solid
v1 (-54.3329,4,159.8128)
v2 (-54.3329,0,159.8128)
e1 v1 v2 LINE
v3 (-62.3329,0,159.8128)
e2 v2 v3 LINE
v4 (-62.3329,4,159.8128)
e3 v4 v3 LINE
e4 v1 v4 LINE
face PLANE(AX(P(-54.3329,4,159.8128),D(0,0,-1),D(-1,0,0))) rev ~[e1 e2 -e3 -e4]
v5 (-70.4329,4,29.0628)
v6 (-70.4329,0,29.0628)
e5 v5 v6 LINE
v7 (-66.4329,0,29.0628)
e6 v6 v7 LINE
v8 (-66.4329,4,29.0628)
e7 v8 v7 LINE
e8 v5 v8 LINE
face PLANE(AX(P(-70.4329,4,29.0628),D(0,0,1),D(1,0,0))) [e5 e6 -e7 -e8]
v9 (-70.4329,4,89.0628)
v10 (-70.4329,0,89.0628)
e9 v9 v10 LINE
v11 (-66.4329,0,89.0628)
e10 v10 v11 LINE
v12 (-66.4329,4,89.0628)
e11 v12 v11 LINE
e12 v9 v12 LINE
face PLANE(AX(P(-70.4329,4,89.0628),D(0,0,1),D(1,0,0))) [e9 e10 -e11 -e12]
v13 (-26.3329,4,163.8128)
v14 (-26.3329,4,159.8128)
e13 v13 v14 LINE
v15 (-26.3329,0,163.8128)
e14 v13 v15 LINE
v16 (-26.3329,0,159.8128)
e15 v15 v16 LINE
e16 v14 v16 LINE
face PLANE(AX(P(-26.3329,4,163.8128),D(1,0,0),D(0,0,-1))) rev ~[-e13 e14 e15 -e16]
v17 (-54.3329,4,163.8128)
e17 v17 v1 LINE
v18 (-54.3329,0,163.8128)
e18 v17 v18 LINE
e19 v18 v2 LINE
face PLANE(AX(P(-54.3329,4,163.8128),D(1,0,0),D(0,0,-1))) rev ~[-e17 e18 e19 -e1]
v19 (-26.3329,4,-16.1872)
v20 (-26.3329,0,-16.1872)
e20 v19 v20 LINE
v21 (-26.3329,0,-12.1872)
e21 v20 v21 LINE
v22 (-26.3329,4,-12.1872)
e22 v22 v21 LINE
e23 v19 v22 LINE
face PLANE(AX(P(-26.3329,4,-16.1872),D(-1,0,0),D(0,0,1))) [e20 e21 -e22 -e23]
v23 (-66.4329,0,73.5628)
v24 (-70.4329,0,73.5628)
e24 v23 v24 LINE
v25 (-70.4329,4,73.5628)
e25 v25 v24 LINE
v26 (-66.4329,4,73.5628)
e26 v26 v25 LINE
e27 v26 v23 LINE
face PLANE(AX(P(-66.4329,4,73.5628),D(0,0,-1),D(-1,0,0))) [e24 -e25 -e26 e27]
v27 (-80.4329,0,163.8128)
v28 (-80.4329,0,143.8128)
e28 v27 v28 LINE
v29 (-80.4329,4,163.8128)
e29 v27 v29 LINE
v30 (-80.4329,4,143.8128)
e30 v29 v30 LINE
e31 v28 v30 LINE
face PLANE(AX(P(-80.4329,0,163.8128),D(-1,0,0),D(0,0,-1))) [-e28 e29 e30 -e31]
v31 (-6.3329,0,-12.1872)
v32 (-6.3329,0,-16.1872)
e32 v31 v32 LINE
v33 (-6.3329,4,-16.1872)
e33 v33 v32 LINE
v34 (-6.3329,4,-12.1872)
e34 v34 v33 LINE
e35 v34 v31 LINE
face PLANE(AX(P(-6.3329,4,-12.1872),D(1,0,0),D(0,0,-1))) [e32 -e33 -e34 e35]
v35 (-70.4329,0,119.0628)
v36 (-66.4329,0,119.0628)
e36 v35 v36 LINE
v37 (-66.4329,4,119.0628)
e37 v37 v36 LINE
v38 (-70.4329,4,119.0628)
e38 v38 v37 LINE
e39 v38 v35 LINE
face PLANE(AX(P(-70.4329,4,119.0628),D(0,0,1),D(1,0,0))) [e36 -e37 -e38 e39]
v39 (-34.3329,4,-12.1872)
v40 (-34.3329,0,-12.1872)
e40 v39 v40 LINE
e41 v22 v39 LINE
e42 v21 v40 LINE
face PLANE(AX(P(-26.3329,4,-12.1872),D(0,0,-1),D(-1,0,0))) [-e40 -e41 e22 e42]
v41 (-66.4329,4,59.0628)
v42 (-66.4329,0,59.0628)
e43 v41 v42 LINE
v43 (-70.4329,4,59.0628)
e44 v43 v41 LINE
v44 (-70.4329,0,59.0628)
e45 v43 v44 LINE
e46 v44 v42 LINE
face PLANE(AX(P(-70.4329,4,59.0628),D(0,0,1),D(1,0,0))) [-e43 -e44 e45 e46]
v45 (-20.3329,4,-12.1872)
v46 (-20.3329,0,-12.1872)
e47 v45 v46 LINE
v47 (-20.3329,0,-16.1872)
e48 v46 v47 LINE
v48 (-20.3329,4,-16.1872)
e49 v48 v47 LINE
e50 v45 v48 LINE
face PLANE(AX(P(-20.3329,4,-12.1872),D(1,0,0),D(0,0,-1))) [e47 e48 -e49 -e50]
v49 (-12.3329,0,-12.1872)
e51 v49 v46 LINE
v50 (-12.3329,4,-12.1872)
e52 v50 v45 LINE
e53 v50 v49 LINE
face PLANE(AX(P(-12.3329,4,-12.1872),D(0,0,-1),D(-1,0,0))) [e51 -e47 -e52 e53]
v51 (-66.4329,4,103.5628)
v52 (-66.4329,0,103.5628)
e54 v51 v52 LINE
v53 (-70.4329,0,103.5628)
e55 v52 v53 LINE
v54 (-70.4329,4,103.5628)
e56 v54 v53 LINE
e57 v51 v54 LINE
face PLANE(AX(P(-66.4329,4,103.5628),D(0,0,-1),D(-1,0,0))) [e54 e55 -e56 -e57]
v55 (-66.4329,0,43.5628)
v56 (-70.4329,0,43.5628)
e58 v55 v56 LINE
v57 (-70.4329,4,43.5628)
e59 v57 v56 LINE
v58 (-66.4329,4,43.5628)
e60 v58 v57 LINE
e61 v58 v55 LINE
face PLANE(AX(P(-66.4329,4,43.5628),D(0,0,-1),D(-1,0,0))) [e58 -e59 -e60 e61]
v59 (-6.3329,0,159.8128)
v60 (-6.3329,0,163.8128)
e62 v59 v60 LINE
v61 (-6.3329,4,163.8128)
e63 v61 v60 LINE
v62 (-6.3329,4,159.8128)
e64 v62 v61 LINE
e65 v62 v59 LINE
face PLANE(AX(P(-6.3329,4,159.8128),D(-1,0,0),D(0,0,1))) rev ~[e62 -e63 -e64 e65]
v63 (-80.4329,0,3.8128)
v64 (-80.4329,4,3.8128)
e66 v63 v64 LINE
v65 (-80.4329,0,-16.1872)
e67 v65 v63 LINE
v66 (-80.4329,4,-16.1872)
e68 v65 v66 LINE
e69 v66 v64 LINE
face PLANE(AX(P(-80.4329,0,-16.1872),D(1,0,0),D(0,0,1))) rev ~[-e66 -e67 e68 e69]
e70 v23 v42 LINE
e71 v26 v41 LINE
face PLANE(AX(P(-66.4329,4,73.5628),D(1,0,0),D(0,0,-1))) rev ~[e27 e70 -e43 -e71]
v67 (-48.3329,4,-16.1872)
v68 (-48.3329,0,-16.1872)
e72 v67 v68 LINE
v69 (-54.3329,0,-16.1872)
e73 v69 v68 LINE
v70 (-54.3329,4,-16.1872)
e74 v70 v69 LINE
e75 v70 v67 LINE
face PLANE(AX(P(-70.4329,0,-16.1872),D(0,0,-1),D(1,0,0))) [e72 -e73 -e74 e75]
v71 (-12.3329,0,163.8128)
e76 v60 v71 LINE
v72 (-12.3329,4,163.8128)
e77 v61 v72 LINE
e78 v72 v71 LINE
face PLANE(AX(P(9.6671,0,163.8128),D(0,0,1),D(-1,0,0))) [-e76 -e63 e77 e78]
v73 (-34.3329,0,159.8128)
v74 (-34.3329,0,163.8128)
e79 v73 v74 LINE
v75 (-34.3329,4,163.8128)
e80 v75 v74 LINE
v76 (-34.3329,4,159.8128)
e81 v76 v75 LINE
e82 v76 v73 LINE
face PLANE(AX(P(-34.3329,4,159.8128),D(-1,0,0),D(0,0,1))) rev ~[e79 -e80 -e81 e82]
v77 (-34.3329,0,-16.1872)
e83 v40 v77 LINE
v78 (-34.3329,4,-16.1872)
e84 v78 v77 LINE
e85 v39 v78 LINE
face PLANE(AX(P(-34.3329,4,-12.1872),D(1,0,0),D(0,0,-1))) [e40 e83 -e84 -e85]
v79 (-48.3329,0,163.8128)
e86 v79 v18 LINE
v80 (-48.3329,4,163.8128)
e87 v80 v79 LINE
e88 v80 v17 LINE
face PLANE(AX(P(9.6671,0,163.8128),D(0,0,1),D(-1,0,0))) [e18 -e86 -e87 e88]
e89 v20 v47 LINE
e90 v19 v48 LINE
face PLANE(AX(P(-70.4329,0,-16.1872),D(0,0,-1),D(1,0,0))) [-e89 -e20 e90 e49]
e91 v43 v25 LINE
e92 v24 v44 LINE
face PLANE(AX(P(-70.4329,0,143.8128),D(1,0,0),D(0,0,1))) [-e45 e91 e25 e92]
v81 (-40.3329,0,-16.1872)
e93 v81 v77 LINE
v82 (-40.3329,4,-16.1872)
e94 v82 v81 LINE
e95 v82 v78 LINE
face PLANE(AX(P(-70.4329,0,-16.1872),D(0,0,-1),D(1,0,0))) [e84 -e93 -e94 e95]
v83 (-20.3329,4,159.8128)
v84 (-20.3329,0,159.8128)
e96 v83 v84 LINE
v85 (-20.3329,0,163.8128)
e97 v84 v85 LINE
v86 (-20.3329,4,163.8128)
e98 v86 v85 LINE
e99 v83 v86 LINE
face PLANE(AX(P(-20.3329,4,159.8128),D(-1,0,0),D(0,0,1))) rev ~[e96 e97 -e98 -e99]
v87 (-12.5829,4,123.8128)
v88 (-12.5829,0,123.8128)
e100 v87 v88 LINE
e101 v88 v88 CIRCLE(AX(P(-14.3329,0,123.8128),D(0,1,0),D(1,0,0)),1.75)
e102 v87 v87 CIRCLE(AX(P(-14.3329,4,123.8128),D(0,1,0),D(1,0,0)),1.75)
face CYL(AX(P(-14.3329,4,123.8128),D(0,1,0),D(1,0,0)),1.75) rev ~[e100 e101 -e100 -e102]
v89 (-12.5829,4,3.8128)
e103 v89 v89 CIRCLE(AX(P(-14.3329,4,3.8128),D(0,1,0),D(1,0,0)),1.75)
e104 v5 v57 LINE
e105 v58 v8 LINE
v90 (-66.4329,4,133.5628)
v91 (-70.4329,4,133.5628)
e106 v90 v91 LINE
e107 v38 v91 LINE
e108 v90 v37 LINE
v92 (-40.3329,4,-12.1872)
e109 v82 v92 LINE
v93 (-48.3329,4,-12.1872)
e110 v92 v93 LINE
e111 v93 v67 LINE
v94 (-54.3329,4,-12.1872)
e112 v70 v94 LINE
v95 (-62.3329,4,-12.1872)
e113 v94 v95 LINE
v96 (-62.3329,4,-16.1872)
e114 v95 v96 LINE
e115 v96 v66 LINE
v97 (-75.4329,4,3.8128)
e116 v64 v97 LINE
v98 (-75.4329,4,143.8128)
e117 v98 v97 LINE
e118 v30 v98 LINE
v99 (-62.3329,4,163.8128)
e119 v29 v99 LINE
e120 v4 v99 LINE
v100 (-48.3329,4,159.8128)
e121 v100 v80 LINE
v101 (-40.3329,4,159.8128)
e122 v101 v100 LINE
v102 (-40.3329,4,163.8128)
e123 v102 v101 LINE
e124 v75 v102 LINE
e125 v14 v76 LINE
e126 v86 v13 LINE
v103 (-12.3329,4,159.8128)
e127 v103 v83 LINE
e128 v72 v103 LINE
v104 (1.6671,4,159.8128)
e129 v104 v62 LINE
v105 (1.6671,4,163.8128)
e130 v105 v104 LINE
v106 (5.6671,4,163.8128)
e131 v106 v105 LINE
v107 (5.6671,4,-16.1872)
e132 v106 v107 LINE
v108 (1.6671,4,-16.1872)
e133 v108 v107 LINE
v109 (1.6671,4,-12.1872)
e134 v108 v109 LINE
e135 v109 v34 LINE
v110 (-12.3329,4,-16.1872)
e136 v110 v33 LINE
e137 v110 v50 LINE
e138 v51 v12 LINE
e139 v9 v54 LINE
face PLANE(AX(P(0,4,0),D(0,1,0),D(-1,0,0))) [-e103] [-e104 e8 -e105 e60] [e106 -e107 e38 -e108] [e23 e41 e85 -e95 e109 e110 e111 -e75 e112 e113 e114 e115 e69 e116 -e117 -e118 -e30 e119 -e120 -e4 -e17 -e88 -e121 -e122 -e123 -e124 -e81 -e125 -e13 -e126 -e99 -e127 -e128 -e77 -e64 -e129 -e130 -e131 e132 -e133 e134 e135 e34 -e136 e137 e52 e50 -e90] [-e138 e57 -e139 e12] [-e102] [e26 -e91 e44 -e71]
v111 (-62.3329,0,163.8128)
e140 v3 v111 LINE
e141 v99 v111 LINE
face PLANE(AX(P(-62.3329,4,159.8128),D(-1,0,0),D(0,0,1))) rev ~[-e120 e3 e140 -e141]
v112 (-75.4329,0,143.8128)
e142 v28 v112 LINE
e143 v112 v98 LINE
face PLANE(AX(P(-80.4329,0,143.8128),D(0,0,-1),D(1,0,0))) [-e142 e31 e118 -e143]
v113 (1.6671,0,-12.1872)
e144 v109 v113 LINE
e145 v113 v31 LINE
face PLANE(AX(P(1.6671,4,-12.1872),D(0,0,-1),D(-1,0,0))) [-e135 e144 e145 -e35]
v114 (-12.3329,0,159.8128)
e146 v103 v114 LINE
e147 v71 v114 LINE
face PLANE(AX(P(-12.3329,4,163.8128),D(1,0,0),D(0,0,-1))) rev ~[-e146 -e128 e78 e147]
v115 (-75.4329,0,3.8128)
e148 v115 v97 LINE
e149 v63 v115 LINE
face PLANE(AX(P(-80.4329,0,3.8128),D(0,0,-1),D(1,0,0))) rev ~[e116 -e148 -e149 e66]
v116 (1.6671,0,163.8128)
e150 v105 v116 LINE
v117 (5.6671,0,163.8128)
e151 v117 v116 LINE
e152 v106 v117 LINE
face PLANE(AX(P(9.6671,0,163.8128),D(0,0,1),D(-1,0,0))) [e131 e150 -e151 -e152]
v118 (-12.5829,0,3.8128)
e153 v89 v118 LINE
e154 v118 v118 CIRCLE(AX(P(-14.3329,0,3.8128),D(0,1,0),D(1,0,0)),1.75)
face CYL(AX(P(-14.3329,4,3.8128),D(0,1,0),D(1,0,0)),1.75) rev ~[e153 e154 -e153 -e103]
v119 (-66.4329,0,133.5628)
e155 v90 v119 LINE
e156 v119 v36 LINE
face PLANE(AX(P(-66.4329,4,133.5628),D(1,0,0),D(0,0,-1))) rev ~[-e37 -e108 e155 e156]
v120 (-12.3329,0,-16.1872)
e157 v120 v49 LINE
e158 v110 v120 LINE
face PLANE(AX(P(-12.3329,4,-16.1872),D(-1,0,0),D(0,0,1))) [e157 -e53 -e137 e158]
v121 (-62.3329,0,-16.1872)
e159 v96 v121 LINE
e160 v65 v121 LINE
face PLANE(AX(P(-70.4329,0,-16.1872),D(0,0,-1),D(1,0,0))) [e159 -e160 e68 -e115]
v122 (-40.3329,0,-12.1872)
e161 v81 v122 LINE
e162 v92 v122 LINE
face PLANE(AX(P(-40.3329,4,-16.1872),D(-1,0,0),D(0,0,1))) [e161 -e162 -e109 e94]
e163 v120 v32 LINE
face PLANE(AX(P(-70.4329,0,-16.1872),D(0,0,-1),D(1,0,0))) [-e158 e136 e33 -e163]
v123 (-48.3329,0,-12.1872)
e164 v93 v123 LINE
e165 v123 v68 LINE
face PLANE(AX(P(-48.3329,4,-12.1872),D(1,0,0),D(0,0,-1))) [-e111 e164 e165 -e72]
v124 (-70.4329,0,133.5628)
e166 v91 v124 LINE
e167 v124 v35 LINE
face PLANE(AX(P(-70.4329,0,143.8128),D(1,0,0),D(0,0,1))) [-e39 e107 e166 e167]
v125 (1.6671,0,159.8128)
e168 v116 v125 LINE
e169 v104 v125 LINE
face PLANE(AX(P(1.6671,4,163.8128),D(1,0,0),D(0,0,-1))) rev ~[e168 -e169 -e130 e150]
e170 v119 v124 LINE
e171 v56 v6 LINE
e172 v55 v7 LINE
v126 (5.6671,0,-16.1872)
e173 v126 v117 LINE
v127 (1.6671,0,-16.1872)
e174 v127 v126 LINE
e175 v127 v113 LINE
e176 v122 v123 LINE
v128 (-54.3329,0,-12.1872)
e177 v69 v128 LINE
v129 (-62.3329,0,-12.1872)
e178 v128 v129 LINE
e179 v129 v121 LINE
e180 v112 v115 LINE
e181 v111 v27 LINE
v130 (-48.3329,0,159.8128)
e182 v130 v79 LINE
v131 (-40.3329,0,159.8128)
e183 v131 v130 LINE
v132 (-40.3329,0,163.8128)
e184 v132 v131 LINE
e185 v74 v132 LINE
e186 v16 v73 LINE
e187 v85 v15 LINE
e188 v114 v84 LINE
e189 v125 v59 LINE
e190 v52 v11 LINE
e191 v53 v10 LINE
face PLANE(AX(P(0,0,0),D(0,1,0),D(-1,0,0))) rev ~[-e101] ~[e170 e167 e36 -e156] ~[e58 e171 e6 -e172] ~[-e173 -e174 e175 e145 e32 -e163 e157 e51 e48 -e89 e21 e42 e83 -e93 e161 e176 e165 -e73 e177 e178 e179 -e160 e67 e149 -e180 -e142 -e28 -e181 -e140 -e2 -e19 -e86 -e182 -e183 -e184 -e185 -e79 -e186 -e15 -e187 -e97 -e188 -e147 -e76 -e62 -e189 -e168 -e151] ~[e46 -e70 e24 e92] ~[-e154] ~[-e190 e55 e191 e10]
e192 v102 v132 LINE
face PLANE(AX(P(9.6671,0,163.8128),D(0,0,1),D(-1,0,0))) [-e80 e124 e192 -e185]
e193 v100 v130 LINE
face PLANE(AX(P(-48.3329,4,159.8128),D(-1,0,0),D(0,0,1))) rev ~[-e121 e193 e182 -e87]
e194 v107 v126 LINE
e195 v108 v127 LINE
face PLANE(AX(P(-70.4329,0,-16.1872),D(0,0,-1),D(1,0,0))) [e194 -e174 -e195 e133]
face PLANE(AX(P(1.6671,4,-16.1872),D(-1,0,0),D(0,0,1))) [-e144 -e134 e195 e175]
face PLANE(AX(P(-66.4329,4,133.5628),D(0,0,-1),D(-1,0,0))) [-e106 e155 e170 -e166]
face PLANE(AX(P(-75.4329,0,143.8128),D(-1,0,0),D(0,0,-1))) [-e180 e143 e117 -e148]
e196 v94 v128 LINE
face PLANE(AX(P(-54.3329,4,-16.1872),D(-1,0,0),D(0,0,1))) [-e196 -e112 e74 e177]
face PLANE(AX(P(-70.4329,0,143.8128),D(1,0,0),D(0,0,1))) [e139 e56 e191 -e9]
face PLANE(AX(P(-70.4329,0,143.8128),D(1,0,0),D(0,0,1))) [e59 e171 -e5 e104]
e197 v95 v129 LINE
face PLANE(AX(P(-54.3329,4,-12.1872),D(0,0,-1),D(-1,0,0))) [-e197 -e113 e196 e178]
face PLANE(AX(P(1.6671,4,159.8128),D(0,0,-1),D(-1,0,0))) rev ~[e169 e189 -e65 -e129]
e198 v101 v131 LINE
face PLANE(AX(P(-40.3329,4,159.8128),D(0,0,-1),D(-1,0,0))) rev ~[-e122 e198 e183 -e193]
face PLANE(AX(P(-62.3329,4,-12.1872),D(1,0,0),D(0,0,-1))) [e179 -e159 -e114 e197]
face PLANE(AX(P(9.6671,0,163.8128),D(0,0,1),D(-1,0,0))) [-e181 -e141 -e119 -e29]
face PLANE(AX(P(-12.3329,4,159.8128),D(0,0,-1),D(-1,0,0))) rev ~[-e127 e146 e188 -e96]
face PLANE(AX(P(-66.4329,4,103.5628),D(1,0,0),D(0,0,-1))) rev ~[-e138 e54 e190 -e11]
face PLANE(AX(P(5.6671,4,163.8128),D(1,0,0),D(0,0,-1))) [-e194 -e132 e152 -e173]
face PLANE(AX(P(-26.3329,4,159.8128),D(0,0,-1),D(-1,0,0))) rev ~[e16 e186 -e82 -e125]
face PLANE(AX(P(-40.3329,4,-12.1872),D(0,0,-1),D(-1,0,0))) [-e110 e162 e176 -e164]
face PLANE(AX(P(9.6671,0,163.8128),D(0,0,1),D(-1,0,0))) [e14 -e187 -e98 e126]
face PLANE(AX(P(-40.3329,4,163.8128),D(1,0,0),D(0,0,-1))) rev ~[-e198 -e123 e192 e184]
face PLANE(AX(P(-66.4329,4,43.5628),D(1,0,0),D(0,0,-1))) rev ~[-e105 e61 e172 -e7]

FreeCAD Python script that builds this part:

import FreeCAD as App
import Part
import Sketcher
Q = App.Units.Quantity


def add_polygon(sketch, points):
    """Adds a closed chain of lines whose ends are joined by coincident constraints."""
    first, n = sketch.GeometryCount, len(points)
    for a, b in zip(points, points[1:] + points[:1]):
        sketch.addGeometry(Part.LineSegment(App.Vector(*a, 0), App.Vector(*b, 0)), False)
    for i in range(n):
        sketch.addConstraint(Sketcher.Constraint("Coincident", first + i, 2, first + (i + 1) % n, 1))

doc = App.newDocument("Part")
body = doc.addObject("PartDesign::Body", "Body")

# Sketch on XZ plane
sketch1 = body.newObject("Sketcher::SketchObject", "Sketch")
sketch1.AttachmentSupport = (doc.getObject("XZ_Plane"), [""])
sketch1.MapMode = "FlatFace"
add_polygon(sketch1, [(-70, 164), (10, 164), (10, -16), (-70, -16)])  # lines 0-3
sketch1.addConstraint([
    Sketcher.Constraint("Horizontal", 0),
    Sketcher.Constraint("Vertical", 1),
    Sketcher.Constraint("Horizontal", 2),
    Sketcher.Constraint("Vertical", 3),
    Sketcher.Constraint("DistanceY", 1, 2, 1, 1, Q("180 mm")),
    Sketcher.Constraint("DistanceX", 0, 1, 0, 2, Q("80.1 mm")),
    Sketcher.Constraint("DistanceX", -1, 1, 0, 2, Q("9.667 mm")),
    Sketcher.Constraint("DistanceY", -1, 1, 0, 2, Q("163.8128 mm")),
])
pad1 = body.newObject("PartDesign::Pad", "Pad")
pad1.Profile = sketch1
pad1.Length = 4
pad1.Reversed = True

# Sketch on XZ plane
sketch2 = body.newObject("Sketcher::SketchObject", "Sketch001")
sketch2.AttachmentSupport = (doc.getObject("XZ_Plane"), [""])
sketch2.MapMode = "FlatFace"
sketch2.AttachmentOffset = App.Placement(App.Vector(0, 0, -4), App.Rotation())
add_polygon(sketch2, [(-70.4, 159.6), (-66.4, 159.6), (-66.4, 149.1), (-70.4, 149.1)])  # lines 0-3
add_polygon(sketch2, [(-62.3, 159.8), (-62.3, 163.8), (-54.3, 163.8), (-54.3, 159.8)])  # lines 4-7
add_polygon(sketch2, [(-70.4, 119.1), (-70.4, 133.6), (-66.4, 133.6), (-66.4, 119.1)])  # lines 8-11
add_polygon(sketch2, [(-48.3, 159.8), (-48.3, 163.8), (-40.3, 163.8), (-40.3, 159.8)])  # lines 12-15
add_polygon(sketch2, [(-70.4, 89.1), (-70.4, 103.6), (-66.4, 103.6), (-66.4, 89.1)])  # lines 16-19
add_polygon(sketch2, [(-34.3, 159.8), (-34.3, 163.8), (-26.3, 163.8), (-26.3, 159.8)])  # lines 20-23
add_polygon(sketch2, [(-70.4, 59.1), (-70.4, 73.6), (-66.4, 73.6), (-66.4, 59.1)])  # lines 24-27
add_polygon(sketch2, [(-20.3, 159.8), (-20.3, 163.8), (-12.3, 163.8), (-12.3, 159.8)])  # lines 28-31
add_polygon(sketch2, [(-70.4, 29.1), (-70.4, 43.6), (-66.4, 43.6), (-66.4, 29.1)])  # lines 32-35
add_polygon(sketch2, [(-6.3, 159.8), (-6.3, 163.8), (1.7, 163.8), (1.7, 159.8)])  # lines 36-39
add_polygon(sketch2, [(-70.4, -0.9), (-70.4, 13.6), (-66.4, 13.6), (-66.4, -0.9)])  # lines 40-43
add_polygon(sketch2, [(5.7, 163.8), (9.7, 163.8), (9.7, -16.2), (5.7, -16.2)])  # lines 44-47
add_polygon(sketch2, [(-54.3, -16.2), (-62.3, -16.2), (-62.3, -12.2), (-54.3, -12.2)])  # lines 48-51
add_polygon(sketch2, [(-40.3, -16.2), (-48.3, -16.2), (-48.3, -12.2), (-40.3, -12.2)])  # lines 52-55
add_polygon(sketch2, [(-26.3, -16.2), (-34.3, -16.2), (-34.3, -12.2), (-26.3, -12.2)])  # lines 56-59
add_polygon(sketch2, [(-12.3, -16.2), (-20.3, -16.2), (-20.3, -12.2), (-12.3, -12.2)])  # lines 60-63
add_polygon(sketch2, [(1.7, -16.2), (-6.3, -16.2), (-6.3, -12.2), (1.7, -12.2)])  # lines 64-67
sketch2.addGeometry(Part.Circle(App.Vector(-14.3, 3.8, 0), App.Vector(0, 0, 1), 1.8), False)  # 68
sketch2.addGeometry(Part.Circle(App.Vector(-14.3, 123.8, 0), App.Vector(0, 0, 1), 1.8), False)  # 69
sketch2.addConstraint([
    Sketcher.Constraint("Horizontal", 0),
    Sketcher.Constraint("Vertical", 1),
    Sketcher.Constraint("Horizontal", 2),
    Sketcher.Constraint("Vertical", 3),
    Sketcher.Constraint("Vertical", 4),
    Sketcher.Constraint("Horizontal", 5),
    Sketcher.Constraint("Vertical", 6),
    Sketcher.Constraint("Horizontal", 7),
    Sketcher.Constraint("Vertical", 8),
    Sketcher.Constraint("Horizontal", 9),
    Sketcher.Constraint("Vertical", 10),
    Sketcher.Constraint("Horizontal", 11),
    Sketcher.Constraint("Vertical", 12),
    Sketcher.Constraint("Horizontal", 13),
    Sketcher.Constraint("Vertical", 14),
    Sketcher.Constraint("Horizontal", 15),
    Sketcher.Constraint("Vertical", 16),
    Sketcher.Constraint("Horizontal", 17),
    Sketcher.Constraint("Vertical", 18),
    Sketcher.Constraint("Horizontal", 19),
    Sketcher.Constraint("Vertical", 20),
    Sketcher.Constraint("Horizontal", 21),
    Sketcher.Constraint("Vertical", 22),
    Sketcher.Constraint("Horizontal", 23),
    Sketcher.Constraint("Vertical", 24),
    Sketcher.Constraint("Horizontal", 25),
    Sketcher.Constraint("Vertical", 26),
    Sketcher.Constraint("Horizontal", 27),
    Sketcher.Constraint("Vertical", 28),
    Sketcher.Constraint("Horizontal", 29),
    Sketcher.Constraint("Vertical", 30),
    Sketcher.Constraint("Horizontal", 31),
    Sketcher.Constraint("Vertical", 32),
    Sketcher.Constraint("Horizontal", 33),
    Sketcher.Constraint("Vertical", 34),
    Sketcher.Constraint("Horizontal", 35),
    Sketcher.Constraint("Vertical", 36),
    Sketcher.Constraint("Horizontal", 37),
    Sketcher.Constraint("Vertical", 38),
    Sketcher.Constraint("Horizontal", 39),
    Sketcher.Constraint("Vertical", 40),
    Sketcher.Constraint("Horizontal", 41),
    Sketcher.Constraint("Vertical", 42),
    Sketcher.Constraint("Horizontal", 43),
    Sketcher.Constraint("Horizontal", 44),
    Sketcher.Constraint("Vertical", 45),
    Sketcher.Constraint("Horizontal", 46),
    Sketcher.Constraint("Vertical", 47),
    Sketcher.Constraint("Horizontal", 48),
    Sketcher.Constraint("Vertical", 49),
    Sketcher.Constraint("Horizontal", 50),
    Sketcher.Constraint("Vertical", 51),
    Sketcher.Constraint("Horizontal", 52),
    Sketcher.Constraint("Vertical", 53),
    Sketcher.Constraint("Horizontal", 54),
    Sketcher.Constraint("Vertical", 55),
    Sketcher.Constraint("Horizontal", 56),
    Sketcher.Constraint("Vertical", 57),
    Sketcher.Constraint("Horizontal", 58),
    Sketcher.Constraint("Vertical", 59),
    Sketcher.Constraint("Horizontal", 60),
    Sketcher.Constraint("Vertical", 61),
    Sketcher.Constraint("Horizontal", 62),
    Sketcher.Constraint("Vertical", 63),
    Sketcher.Constraint("Horizontal", 64),
    Sketcher.Constraint("Vertical", 65),
    Sketcher.Constraint("Horizontal", 66),
    Sketcher.Constraint("Vertical", 67),
    Sketcher.Constraint("Equal", 68, 69),
    Sketcher.Constraint("Horizontal", 5, 2, 12, 2),
    Sketcher.Constraint("Horizontal", 7, 2, 14, 2),
    Sketcher.Constraint("Horizontal", 13, 2, 20, 2),
    Sketcher.Constraint("Horizontal", 15, 2, 22, 2),
    Sketcher.Constraint("Horizontal", 21, 2, 28, 2),
    Sketcher.Constraint("Horizontal", 23, 2, 30, 2),
    Sketcher.Constraint("Horizontal", 29, 2, 36, 2),
    Sketcher.Constraint("Horizontal", 31, 2, 38, 2),
    Sketcher.Constraint("Horizontal", 37, 2, 44, 2),
    Sketcher.Constraint("Horizontal", 46, 2, 48, 2),
    Sketcher.Constraint("Horizontal", 51, 2, 52, 2),
    Sketcher.Constraint("Horizontal", 50, 2, 53, 2),
    Sketcher.Constraint("Horizontal", 55, 2, 56, 2),
    Sketcher.Constraint("Horizontal", 54, 2, 57, 2),
    Sketcher.Constraint("Horizontal", 59, 2, 60, 2),
    Sketcher.Constraint("Horizontal", 58, 2, 61, 2),
    Sketcher.Constraint("Horizontal", 63, 2, 64, 2),
    Sketcher.Constraint("Horizontal", 62, 2, 65, 2),
    Sketcher.Constraint("Vertical", 68, 3, 69, 3),
    Sketcher.Constraint("Vertical", 3, 2, 8, 2),
    Sketcher.Constraint("Vertical", 1, 2, 9, 2),
    Sketcher.Constraint("Vertical", 11, 2, 16, 2),
    Sketcher.Constraint("Vertical", 10, 2, 17, 2),
    Sketcher.Constraint("Vertical", 19, 2, 24, 2),
    Sketcher.Constraint("Vertical", 18, 2, 25, 2),
    Sketcher.Constraint("Vertical", 27, 2, 32, 2),
    Sketcher.Constraint("Vertical", 26, 2, 33, 2),
    Sketcher.Constraint("Vertical", 35, 2, 40, 2),
    Sketcher.Constraint("Vertical", 34, 2, 41, 2),
    Sketcher.Constraint("Vertical", 7, 2, 48, 2),
    Sketcher.Constraint("Vertical", 6, 2, 50, 2),
    Sketcher.Constraint("Vertical", 15, 2, 52, 2),
    Sketcher.Constraint("Vertical", 14, 2, 54, 2),
    Sketcher.Constraint("Vertical", 23, 2, 56, 2),
    Sketcher.Constraint("Vertical", 22, 2, 58, 2),
    Sketcher.Constraint("Vertical", 31, 2, 60, 2),
    Sketcher.Constraint("Vertical", 30, 2, 62, 2),
    Sketcher.Constraint("Vertical", 39, 2, 64, 2),
    Sketcher.Constraint("Vertical", 38, 2, 66, 2),
    Sketcher.Constraint("Equal", 7, 13),
    Sketcher.Constraint("Equal", 15, 21),
    Sketcher.Constraint("Equal", 23, 29),
    Sketcher.Constraint("Equal", 31, 37),
    Sketcher.Constraint("Equal", 43, 44),
    Sketcher.Constraint("Equal", 46, 4),
    Sketcher.Constraint("Equal", 10, 16),
    Sketcher.Constraint("Equal", 18, 24),
    Sketcher.Constraint("Equal", 26, 32),
    Sketcher.Constraint("Equal", 34, 40),
    Sketcher.Constraint("Equal", 38, 49),
    Sketcher.Constraint("Diameter", 68, Q("3.5 mm")),
    Sketcher.Constraint("DistanceX", 0, 1, 0, 2, Q("4 mm")),
    Sketcher.Constraint("DistanceX", 5, 1, 5, 2, Q("8 mm")),
    Sketcher.Constraint("DistanceY", 45, 2, 45, 1, Q("180 mm")),
    Sketcher.Constraint("DistanceY", 1, 2, 1, 1, Q("10.5 mm")),
    Sketcher.Constraint("DistanceY", 8, 1, 8, 2, Q("14.5 mm")),
    Sketcher.Constraint("DistanceX", 68, 3, -1, 1, Q("14.333 mm")),
    Sketcher.Constraint("DistanceX", 0, 2, -1, 1, Q("66.433 mm")),
    Sketcher.Constraint("DistanceX", 4, 2, -1, 1, Q("62.333 mm")),
    Sketcher.Constraint("DistanceX", 12, 2, -1, 1, Q("48.333 mm")),
    Sketcher.Constraint("DistanceX", 20, 2, -1, 1, Q("34.333 mm")),
    Sketcher.Constraint("DistanceX", 28, 2, -1, 1, Q("20.333 mm")),
    Sketcher.Constraint("DistanceX", 36, 2, -1, 1, Q("6.333 mm")),
    Sketcher.Constraint("DistanceX", -1, 1, 44, 2, Q("9.667 mm")),
    Sketcher.Constraint("DistanceY", -1, 1, 68, 3, Q("3.8128 mm")),
    Sketcher.Constraint("DistanceY", -1, 1, 69, 3, Q("123.8128 mm")),
    Sketcher.Constraint("DistanceY", -1, 1, 0, 2, Q("159.5628 mm")),
    Sketcher.Constraint("DistanceY", -1, 1, 4, 2, Q("163.8128 mm")),
    Sketcher.Constraint("DistanceY", -1, 1, 8, 2, Q("133.5628 mm")),
    Sketcher.Constraint("DistanceY", -1, 1, 16, 2, Q("103.5628 mm")),
    Sketcher.Constraint("DistanceY", -1, 1, 24, 2, Q("73.5628 mm")),
    Sketcher.Constraint("DistanceY", -1, 1, 32, 2, Q("43.5628 mm")),
    Sketcher.Constraint("DistanceY", -1, 1, 40, 2, Q("13.5628 mm")),
])
pocket1 = body.newObject("PartDesign::Pocket", "Pocket")
pocket1.Profile = sketch2
pocket1.Length = 4
pocket1.Reversed = True

# Sketch on XZ plane
sketch3 = body.newObject("Sketcher::SketchObject", "Sketch002")
sketch3.AttachmentSupport = (doc.getObject("XZ_Plane"), [""])
sketch3.MapMode = "FlatFace"
add_polygon(sketch3, [(-70.4, 149.1), (-66.4, 149.1), (-66.4, 159.6), (-70.4, 159.6), (-70.4, 163.8), (-80.4, 163.8), (-80.4, 143.8), (-75.4, 143.8), (-75.4, 3.8), (-80.4, 3.8), (-80.4, -16.2), (-70.4, -16.2), (-70.4, -0.9), (-66.4, -0.9), (-66.4, 13.6), (-70.4, 13.6)])  # lines 0-15
sketch3.addConstraint([
    Sketcher.Constraint("Horizontal", 0),
    Sketcher.Constraint("Vertical", 1),
    Sketcher.Constraint("Horizontal", 2),
    Sketcher.Constraint("Vertical", 3),
    Sketcher.Constraint("Horizontal", 4),
    Sketcher.Constraint("Vertical", 5),
    Sketcher.Constraint("Horizontal", 6),
    Sketcher.Constraint("Vertical", 7),
    Sketcher.Constraint("Horizontal", 8),
    Sketcher.Constraint("Vertical", 9),
    Sketcher.Constraint("Horizontal", 10),
    Sketcher.Constraint("Vertical", 11),
    Sketcher.Constraint("Horizontal", 12),
    Sketcher.Constraint("Vertical", 13),
    Sketcher.Constraint("Horizontal", 14),
    Sketcher.Constraint("Vertical", 15),
    Sketcher.Constraint("Vertical", 5, 2, 8, 2),
    Sketcher.Constraint("Vertical", 3, 2, 10, 2),
    Sketcher.Constraint("Vertical", 1, 2, 12, 2),
    Sketcher.Constraint("Vertical", 11, 2, 14, 2),
    Sketcher.Constraint("Equal", 5, 9),
    Sketcher.Constraint("DistanceX", 4, 2, 4, 1, Q("10 mm")),
    Sketcher.Constraint("DistanceX", 6, 1, 6, 2, Q("5 mm")),
    Sketcher.Constraint("DistanceY", 5, 2, 5, 1, Q("20 mm")),
    Sketcher.Constraint("DistanceX", 0, 1, 0, 2, Q("4 mm")),
    Sketcher.Constraint("DistanceY", 7, 2, 7, 1, Q("140 mm")),
    Sketcher.Constraint("DistanceY", 1, 1, 1, 2, Q("10.5 mm")),
    Sketcher.Constraint("DistanceY", 13, 1, 13, 2, Q("14.5 mm")),
    Sketcher.Constraint("DistanceY", 15, 1, 15, 2, Q("135.5 mm")),
    Sketcher.Constraint("DistanceY", 3, 1, 3, 2, Q("4.25 mm")),
    Sketcher.Constraint("DistanceX", 0, 2, -1, 1, Q("66.433 mm")),
    Sketcher.Constraint("DistanceY", -1, 1, 0, 2, Q("149.0628 mm")),
])
pad2 = body.newObject("PartDesign::Pad", "Pad001")
pad2.Profile = sketch3
pad2.Length = 4
pad2.Reversed = True

doc.recompute()
